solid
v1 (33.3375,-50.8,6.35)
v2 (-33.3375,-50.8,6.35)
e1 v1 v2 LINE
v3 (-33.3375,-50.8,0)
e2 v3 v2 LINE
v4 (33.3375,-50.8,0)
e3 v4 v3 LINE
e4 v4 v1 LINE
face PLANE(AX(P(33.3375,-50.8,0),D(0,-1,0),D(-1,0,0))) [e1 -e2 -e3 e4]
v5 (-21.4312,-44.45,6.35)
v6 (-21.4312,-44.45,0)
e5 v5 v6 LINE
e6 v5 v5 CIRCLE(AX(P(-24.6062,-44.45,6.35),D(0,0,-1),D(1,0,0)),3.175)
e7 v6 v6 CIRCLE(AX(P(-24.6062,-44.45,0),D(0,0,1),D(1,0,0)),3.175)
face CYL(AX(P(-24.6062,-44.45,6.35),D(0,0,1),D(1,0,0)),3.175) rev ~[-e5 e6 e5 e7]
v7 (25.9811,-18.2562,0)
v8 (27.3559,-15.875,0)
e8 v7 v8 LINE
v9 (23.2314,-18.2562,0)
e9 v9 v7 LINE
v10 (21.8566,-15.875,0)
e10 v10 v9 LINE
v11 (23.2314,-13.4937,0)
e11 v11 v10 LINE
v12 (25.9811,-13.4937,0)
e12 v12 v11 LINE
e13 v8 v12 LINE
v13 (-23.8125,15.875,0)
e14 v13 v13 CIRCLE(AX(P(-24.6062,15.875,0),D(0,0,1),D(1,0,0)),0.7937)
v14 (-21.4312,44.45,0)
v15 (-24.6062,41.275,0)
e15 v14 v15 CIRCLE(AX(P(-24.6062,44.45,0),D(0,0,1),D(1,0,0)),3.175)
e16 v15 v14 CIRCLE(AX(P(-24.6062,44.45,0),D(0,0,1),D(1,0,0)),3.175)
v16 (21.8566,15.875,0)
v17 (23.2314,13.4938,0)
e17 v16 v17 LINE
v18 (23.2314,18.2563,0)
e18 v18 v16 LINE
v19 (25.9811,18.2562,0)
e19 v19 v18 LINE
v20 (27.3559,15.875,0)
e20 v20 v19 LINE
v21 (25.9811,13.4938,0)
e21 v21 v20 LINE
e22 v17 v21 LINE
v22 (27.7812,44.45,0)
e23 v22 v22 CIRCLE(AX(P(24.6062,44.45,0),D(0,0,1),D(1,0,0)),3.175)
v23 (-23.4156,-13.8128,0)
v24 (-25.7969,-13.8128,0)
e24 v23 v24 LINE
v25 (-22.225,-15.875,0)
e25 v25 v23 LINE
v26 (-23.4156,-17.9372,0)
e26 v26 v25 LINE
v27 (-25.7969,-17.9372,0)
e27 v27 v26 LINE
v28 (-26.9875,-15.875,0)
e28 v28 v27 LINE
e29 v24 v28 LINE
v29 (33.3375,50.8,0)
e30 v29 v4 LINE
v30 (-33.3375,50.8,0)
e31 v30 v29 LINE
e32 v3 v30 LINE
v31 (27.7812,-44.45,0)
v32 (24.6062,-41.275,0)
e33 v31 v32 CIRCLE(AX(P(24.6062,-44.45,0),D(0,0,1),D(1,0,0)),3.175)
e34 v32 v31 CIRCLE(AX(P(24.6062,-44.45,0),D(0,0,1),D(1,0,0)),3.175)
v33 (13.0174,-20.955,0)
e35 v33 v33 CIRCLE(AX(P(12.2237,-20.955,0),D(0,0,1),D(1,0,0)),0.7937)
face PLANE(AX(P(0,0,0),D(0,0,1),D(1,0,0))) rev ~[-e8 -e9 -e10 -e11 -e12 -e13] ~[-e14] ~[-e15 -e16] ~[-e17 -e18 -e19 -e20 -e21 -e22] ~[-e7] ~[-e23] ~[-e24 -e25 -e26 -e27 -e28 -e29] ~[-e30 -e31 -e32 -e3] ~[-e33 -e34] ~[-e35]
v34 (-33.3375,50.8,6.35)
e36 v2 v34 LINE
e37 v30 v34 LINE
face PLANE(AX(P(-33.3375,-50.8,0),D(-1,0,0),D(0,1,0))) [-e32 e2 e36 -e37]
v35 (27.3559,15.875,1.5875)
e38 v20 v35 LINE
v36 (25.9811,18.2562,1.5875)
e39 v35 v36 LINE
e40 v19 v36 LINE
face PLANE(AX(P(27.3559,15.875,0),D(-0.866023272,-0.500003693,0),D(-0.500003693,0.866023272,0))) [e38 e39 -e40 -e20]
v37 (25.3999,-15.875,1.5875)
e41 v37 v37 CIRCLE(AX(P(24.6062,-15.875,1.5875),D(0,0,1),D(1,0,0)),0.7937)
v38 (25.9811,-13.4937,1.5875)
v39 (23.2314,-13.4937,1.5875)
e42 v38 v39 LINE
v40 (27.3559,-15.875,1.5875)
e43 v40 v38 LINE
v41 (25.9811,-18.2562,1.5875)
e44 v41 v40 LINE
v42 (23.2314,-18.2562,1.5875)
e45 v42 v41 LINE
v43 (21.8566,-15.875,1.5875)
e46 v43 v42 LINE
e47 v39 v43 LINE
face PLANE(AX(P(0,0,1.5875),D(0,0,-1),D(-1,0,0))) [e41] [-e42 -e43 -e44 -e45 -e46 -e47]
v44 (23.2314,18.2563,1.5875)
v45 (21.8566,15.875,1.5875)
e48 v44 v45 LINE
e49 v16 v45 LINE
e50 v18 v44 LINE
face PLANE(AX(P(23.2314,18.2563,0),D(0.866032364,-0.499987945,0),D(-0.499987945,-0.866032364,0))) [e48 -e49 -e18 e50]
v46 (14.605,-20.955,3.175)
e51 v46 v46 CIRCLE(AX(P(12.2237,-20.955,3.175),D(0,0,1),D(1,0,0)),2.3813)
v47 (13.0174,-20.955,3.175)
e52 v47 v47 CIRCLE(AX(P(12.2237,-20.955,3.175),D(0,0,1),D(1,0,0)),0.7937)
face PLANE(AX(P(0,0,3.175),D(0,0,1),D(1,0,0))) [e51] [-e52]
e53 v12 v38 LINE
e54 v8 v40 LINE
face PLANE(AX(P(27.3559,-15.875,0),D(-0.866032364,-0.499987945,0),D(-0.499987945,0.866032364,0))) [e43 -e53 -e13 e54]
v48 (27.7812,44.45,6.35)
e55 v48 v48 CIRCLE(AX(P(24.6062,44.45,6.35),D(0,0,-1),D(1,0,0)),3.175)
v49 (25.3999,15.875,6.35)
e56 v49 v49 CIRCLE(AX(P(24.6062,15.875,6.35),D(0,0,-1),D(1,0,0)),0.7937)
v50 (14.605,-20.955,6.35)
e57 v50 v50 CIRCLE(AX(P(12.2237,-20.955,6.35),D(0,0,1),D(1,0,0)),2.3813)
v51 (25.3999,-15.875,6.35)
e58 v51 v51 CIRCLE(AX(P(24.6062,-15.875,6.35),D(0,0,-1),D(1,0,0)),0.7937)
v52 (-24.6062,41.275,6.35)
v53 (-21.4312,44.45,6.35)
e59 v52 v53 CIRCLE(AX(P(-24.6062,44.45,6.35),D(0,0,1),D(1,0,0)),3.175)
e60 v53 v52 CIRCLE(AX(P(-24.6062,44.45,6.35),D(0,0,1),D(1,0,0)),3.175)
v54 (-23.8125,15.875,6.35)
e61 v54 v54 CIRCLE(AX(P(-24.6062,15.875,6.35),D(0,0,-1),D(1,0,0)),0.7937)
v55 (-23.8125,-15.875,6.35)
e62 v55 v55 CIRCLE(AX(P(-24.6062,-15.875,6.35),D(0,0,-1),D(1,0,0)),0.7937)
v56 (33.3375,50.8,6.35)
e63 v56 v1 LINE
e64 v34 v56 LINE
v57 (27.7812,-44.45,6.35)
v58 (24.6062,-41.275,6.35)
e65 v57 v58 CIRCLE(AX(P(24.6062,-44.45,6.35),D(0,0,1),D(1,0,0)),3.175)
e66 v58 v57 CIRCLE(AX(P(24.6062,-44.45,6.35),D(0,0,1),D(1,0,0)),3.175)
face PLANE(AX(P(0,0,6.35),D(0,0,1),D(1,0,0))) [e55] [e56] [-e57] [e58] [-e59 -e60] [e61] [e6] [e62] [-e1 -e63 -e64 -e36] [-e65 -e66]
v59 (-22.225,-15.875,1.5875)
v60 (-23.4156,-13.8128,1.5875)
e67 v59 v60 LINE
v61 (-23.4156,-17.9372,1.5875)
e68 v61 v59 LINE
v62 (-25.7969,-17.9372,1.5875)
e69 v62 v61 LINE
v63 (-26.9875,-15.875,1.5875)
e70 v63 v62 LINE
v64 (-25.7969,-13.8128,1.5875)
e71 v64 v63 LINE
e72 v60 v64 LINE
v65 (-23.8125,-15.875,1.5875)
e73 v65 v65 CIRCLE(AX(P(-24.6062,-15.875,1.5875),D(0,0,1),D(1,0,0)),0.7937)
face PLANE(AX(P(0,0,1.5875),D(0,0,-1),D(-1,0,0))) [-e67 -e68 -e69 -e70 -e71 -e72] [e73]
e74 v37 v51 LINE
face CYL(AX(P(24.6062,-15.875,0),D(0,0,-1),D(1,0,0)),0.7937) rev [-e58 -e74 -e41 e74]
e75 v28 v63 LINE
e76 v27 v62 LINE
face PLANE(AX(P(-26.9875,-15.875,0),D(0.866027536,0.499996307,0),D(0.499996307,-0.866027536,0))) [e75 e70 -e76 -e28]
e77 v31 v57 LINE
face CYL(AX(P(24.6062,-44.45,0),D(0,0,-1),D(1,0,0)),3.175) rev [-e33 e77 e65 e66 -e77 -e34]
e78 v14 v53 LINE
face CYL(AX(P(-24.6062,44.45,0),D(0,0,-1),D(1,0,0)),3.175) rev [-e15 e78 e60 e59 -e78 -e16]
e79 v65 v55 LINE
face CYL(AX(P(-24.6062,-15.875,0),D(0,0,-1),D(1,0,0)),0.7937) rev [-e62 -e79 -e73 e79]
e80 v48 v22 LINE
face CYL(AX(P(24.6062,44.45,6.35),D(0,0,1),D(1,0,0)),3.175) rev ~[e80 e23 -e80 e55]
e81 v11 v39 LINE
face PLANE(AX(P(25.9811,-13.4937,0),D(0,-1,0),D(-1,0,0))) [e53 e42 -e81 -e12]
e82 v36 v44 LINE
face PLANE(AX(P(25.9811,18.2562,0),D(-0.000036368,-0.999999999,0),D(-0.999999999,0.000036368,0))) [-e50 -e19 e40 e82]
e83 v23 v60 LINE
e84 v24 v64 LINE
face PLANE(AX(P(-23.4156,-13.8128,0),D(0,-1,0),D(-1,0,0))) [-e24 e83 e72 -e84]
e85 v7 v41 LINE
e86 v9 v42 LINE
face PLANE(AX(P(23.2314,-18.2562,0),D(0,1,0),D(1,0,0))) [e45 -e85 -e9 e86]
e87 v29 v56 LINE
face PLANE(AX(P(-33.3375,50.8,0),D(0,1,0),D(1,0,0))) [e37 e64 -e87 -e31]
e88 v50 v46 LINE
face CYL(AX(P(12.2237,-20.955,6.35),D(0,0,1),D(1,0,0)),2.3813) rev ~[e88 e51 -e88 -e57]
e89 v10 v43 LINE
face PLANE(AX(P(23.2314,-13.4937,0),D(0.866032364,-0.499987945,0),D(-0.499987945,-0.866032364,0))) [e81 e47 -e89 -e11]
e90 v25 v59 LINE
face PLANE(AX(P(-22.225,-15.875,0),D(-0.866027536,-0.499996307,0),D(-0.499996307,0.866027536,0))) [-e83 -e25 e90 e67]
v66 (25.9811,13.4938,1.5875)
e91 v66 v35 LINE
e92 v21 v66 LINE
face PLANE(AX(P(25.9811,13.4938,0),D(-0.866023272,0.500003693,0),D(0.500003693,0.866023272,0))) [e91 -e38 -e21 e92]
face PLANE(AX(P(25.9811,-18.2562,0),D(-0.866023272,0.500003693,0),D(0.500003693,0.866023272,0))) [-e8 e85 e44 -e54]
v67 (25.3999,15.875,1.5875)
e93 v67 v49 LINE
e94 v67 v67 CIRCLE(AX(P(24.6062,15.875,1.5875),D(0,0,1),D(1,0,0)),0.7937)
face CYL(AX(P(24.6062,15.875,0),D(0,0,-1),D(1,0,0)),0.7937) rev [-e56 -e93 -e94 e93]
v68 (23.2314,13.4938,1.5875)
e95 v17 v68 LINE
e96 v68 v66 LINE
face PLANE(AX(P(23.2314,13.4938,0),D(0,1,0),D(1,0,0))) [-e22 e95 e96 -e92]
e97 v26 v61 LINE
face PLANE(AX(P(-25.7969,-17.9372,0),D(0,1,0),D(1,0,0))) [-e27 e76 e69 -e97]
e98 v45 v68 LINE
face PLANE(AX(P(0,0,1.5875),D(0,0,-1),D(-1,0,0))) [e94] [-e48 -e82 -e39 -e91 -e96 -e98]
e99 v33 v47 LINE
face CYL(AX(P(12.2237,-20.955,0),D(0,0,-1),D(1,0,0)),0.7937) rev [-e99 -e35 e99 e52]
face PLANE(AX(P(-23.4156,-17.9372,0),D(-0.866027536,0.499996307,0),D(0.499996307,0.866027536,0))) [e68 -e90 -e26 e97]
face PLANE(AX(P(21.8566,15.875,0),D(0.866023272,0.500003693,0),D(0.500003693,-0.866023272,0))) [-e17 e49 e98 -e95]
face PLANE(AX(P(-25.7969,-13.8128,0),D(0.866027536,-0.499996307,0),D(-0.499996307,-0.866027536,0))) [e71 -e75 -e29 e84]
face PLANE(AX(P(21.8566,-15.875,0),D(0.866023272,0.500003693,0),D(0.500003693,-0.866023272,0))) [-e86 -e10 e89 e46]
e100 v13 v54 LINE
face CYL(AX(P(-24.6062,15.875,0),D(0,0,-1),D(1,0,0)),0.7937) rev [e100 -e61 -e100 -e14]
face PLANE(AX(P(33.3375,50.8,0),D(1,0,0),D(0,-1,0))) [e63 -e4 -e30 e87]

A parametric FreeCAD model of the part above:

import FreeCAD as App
import Part
import Sketcher

V = App.Vector
Q = App.Units.Quantity

doc = App.newDocument("Part")
params = doc.addObject("Spreadsheet::Sheet", "Params")
for row, (alias, value) in enumerate([
    ("sketch1_diameter", "0.25 in"),
    ("sketch1_height", "4 in"),
    ("sketch1_width", "2.625 in"),
    ("pad1_length", "0.25 in"),
    ("sketch2_diameter", "0.0625 in"),
    ("pocket1_length", "0.25 in"),
    ("sketch3_diameter", "0.0625 in"),
    ("sketch3_width", "0.093752 in"),
    ("pocket2_length", "0.0625 in"),
    ("sketch4_diameter", "0.1875 in"),
    ("sketch4_diameter2", "0.0625 in"),
    ("pocket3_length", "0.125 in"),
    ("sketch5_diameter", "0.25 in"),
    ("pocket4_length", "0.25 in"),
], start=1):
    params.set(f"A{row}", alias)
    params.set(f"B{row}", "=" + value)
    params.setAlias(f"B{row}", alias)

body = doc.addObject("PartDesign::Body", "Body")

# Sketch on XY plane
sketch1 = body.newObject("Sketcher::SketchObject", "Sketch")
sketch1.AttachmentSupport = (doc.getObject("XY_Plane"), [""])
sketch1.MapMode = "FlatFace"
sketch1.addGeometry(Part.LineSegment(V(-33.3375, -50.8, 0), V(33.3375, -50.8, 0)), False)
sketch1.addGeometry(Part.LineSegment(V(33.3375, -50.8, 0), V(33.3375, 50.8, 0)), False)
sketch1.addGeometry(Part.LineSegment(V(33.3375, 50.8, 0), V(-33.3375, 50.8, 0)), False)
sketch1.addGeometry(Part.LineSegment(V(-33.3375, 50.8, 0), V(-33.3375, -50.8, 0)), False)
sketch1.addGeometry(Part.Circle(V(24.6062, -44.45, 0), V(0, 0, 1), 3.175), False)
sketch1.addGeometry(Part.Circle(V(-24.6062, 44.45, 0), V(0, 0, 1), 3.175), False)
sketch1.addConstraint(Sketcher.Constraint("Coincident", 0, 2, 1, 1))
sketch1.addConstraint(Sketcher.Constraint("Coincident", 1, 2, 2, 1))
sketch1.addConstraint(Sketcher.Constraint("Coincident", 2, 2, 3, 1))
sketch1.addConstraint(Sketcher.Constraint("Coincident", 3, 2, 0, 1))
sketch1.addConstraint(Sketcher.Constraint("Horizontal", 0))
sketch1.addConstraint(Sketcher.Constraint("Vertical", 1))
sketch1.addConstraint(Sketcher.Constraint("Horizontal", 2))
sketch1.addConstraint(Sketcher.Constraint("Vertical", 3))
sketch1.addConstraint(Sketcher.Constraint("Equal", 4, 5))
sketch1.addConstraint(Sketcher.Constraint("Symmetric", 4, 3, 5, 3, -1, 1))
sketch1.addConstraint(Sketcher.Constraint("Symmetric", 0, 2, 2, 2, -1, 1))
sketch1.addConstraint(Sketcher.Constraint("Diameter", 4, Q("0.25 in")))
sketch1.addConstraint(Sketcher.Constraint("DistanceY", 1, 1, 1, 2, Q("4 in")))
sketch1.addConstraint(Sketcher.Constraint("DistanceX", 0, 1, 0, 2, Q("2.625 in")))
sketch1.addConstraint(Sketcher.Constraint("DistanceY", 0, 2, 4, 3, Q("0.25 in")))
sketch1.addConstraint(Sketcher.Constraint("DistanceX", 5, 3, 4, 3, Q("1.9375 in")))
sketch1.setExpression("Constraints[11]", "Params.sketch1_diameter")
sketch1.setExpression("Constraints[12]", "Params.sketch1_height")
sketch1.setExpression("Constraints[13]", "Params.sketch1_width")
pad1 = body.newObject("PartDesign::Pad", "Pad")
pad1.Profile = sketch1
pad1.setExpression("Length", "Params.pad1_length")

# Sketch on XY plane
sketch2 = body.newObject("Sketcher::SketchObject", "Sketch001")
sketch2.AttachmentSupport = (doc.getObject("XY_Plane"), [""])
sketch2.MapMode = "FlatFace"
sketch2.addGeometry(Part.Circle(V(-24.6062, -15.875, 0), V(0, 0, 1), 0.7937), False)
sketch2.addGeometry(Part.Circle(V(24.6062, -15.875, 0), V(0, 0, 1), 0.7937), False)
sketch2.addGeometry(Part.Circle(V(12.2237, -20.955, 0), V(0, 0, 1), 0.7937), False)
sketch2.addGeometry(Part.Circle(V(-24.6062, 15.875, 0), V(0, 0, 1), 0.7937), False)
sketch2.addGeometry(Part.Circle(V(24.6062, 15.875, 0), V(0, 0, 1), 0.7937), False)
sketch2.addConstraint(Sketcher.Constraint("Equal", 0, 1))
sketch2.addConstraint(Sketcher.Constraint("Equal", 1, 2))
sketch2.addConstraint(Sketcher.Constraint("Equal", 2, 3))
sketch2.addConstraint(Sketcher.Constraint("Equal", 3, 4))
sketch2.addConstraint(Sketcher.Constraint("Symmetric", 1, 3, 3, 3, -1, 1))
sketch2.addConstraint(Sketcher.Constraint("Symmetric", 0, 3, 4, 3, -1, 1))
sketch2.addConstraint(Sketcher.Constraint("Symmetric", 0, 3, 1, 3, -2))
sketch2.addConstraint(Sketcher.Constraint("Diameter", 0, Q("0.0625 in")))
sketch2.addConstraint(Sketcher.Constraint("DistanceX", 0, 3, 2, 3, Q("1.45 in")))
sketch2.addConstraint(Sketcher.Constraint("DistanceY", 0, 3, 3, 3, Q("1.25 in")))
sketch2.addConstraint(Sketcher.Constraint("DistanceY", 2, 3, 3, 3, Q("1.45 in")))
sketch2.addConstraint(Sketcher.Constraint("DistanceX", 0, 3, 1, 3, Q("1.9375 in")))
sketch2.setExpression("Constraints[7]", "Params.sketch2_diameter")
pocket1 = body.newObject("PartDesign::Pocket", "Pocket")
pocket1.Profile = sketch2
pocket1.setExpression("Length", "Params.pocket1_length")
pocket1.Reversed = True

# Sketch on XY plane
sketch3 = body.newObject("Sketcher::SketchObject", "Sketch002")
sketch3.AttachmentSupport = (doc.getObject("XY_Plane"), [""])
sketch3.MapMode = "FlatFace"
sketch3.addGeometry(Part.LineSegment(V(23.2314, 13.4938, 0), V(21.8566, 15.875, 0)), False)
sketch3.addGeometry(Part.LineSegment(V(21.8566, 15.875, 0), V(23.2314, 18.2563, 0)), False)
sketch3.addGeometry(Part.LineSegment(V(23.2314, 18.2563, 0), V(25.9811, 18.2562, 0)), False)
sketch3.addGeometry(Part.LineSegment(V(25.9811, 18.2562, 0), V(27.3559, 15.875, 0)), False)
sketch3.addGeometry(Part.LineSegment(V(27.3559, 15.875, 0), V(25.9811, 13.4938, 0)), False)
sketch3.addGeometry(Part.LineSegment(V(25.9811, 13.4938, 0), V(23.2314, 13.4938, 0)), False)
sketch3.addGeometry(Part.Circle(V(24.6062, 15.875, 0), V(0, 0, 1), 0.7937), False)
sketch3.addGeometry(Part.LineSegment(V(23.2314, -18.2562, 0), V(21.8566, -15.875, 0)), False)
sketch3.addGeometry(Part.LineSegment(V(21.8566, -15.875, 0), V(23.2314, -13.4937, 0)), False)
sketch3.addGeometry(Part.LineSegment(V(23.2314, -13.4937, 0), V(25.9811, -13.4937, 0)), False)
sketch3.addGeometry(Part.LineSegment(V(25.9811, -13.4937, 0), V(27.3559, -15.875, 0)), False)
sketch3.addGeometry(Part.LineSegment(V(27.3559, -15.875, 0), V(25.9811, -18.2562, 0)), False)
sketch3.addGeometry(Part.LineSegment(V(25.9811, -18.2562, 0), V(23.2314, -18.2562, 0)), False)
sketch3.addGeometry(Part.Circle(V(24.6062, -15.875, 0), V(0, 0, 1), 0.7937), False)
sketch3.addGeometry(Part.LineSegment(V(-25.7969, -17.9372, 0), V(-26.9875, -15.875, 0)), False)
sketch3.addGeometry(Part.LineSegment(V(-26.9875, -15.875, 0), V(-25.7969, -13.8128, 0)), False)
sketch3.addGeometry(Part.LineSegment(V(-25.7969, -13.8128, 0), V(-23.4156, -13.8128, 0)), False)
sketch3.addGeometry(Part.LineSegment(V(-23.4156, -13.8128, 0), V(-22.225, -15.875, 0)), False)
sketch3.addGeometry(Part.LineSegment(V(-22.225, -15.875, 0), V(-23.4156, -17.9372, 0)), False)
sketch3.addGeometry(Part.LineSegment(V(-23.4156, -17.9372, 0), V(-25.7969, -17.9372, 0)), False)
sketch3.addGeometry(Part.Circle(V(-24.6062, -15.875, 0), V(0, 0, 1), 0.7937), False)
sketch3.addConstraint(Sketcher.Constraint("Coincident", 0, 2, 1, 1))
sketch3.addConstraint(Sketcher.Constraint("Coincident", 1, 2, 2, 1))
sketch3.addConstraint(Sketcher.Constraint("Coincident", 2, 2, 3, 1))
sketch3.addConstraint(Sketcher.Constraint("Coincident", 3, 2, 4, 1))
sketch3.addConstraint(Sketcher.Constraint("Coincident", 4, 2, 5, 1))
sketch3.addConstraint(Sketcher.Constraint("Coincident", 5, 2, 0, 1))
sketch3.addConstraint(Sketcher.Constraint("Coincident", 7, 2, 8, 1))
sketch3.addConstraint(Sketcher.Constraint("Coincident", 8, 2, 9, 1))
sketch3.addConstraint(Sketcher.Constraint("Coincident", 9, 2, 10, 1))
sketch3.addConstraint(Sketcher.Constraint("Coincident", 10, 2, 11, 1))
sketch3.addConstraint(Sketcher.Constraint("Coincident", 11, 2, 12, 1))
sketch3.addConstraint(Sketcher.Constraint("Coincident", 12, 2, 7, 1))
sketch3.addConstraint(Sketcher.Constraint("Coincident", 14, 2, 15, 1))
sketch3.addConstraint(Sketcher.Constraint("Coincident", 15, 2, 16, 1))
sketch3.addConstraint(Sketcher.Constraint("Coincident", 16, 2, 17, 1))
sketch3.addConstraint(Sketcher.Constraint("Coincident", 17, 2, 18, 1))
sketch3.addConstraint(Sketcher.Constraint("Coincident", 18, 2, 19, 1))
sketch3.addConstraint(Sketcher.Constraint("Coincident", 19, 2, 14, 1))
sketch3.addConstraint(Sketcher.Constraint("Horizontal", 2))
sketch3.addConstraint(Sketcher.Constraint("Horizontal", 5))
sketch3.addConstraint(Sketcher.Constraint("Horizontal", 9))
sketch3.addConstraint(Sketcher.Constraint("Horizontal", 12))
sketch3.addConstraint(Sketcher.Constraint("Horizontal", 16))
sketch3.addConstraint(Sketcher.Constraint("Horizontal", 19))
sketch3.addConstraint(Sketcher.Constraint("Equal", 6, 13))
sketch3.addConstraint(Sketcher.Constraint("Equal", 13, 20))
sketch3.addConstraint(Sketcher.Constraint("Symmetric", 6, 3, 20, 3, -1, 1))
sketch3.addConstraint(Sketcher.Constraint("Symmetric", 13, 3, 20, 3, -2))
sketch3.addConstraint(Sketcher.Constraint("Symmetric", 0, 2, 7, 2, -1))
sketch3.addConstraint(Sketcher.Constraint("Symmetric", 5, 2, 8, 2, -1))
sketch3.addConstraint(Sketcher.Constraint("Symmetric", 3, 2, 10, 2, -1))
sketch3.addConstraint(Sketcher.Constraint("Symmetric", 2, 2, 11, 2, -1))
sketch3.addConstraint(Sketcher.Constraint("Parallel", 0, 3))
sketch3.addConstraint(Sketcher.Constraint("Parallel", 1, 4))
sketch3.addConstraint(Sketcher.Constraint("Parallel", 3, 7))
sketch3.addConstraint(Sketcher.Constraint("Parallel", 4, 8))
sketch3.addConstraint(Sketcher.Constraint("Parallel", 7, 10))
sketch3.addConstraint(Sketcher.Constraint("Parallel", 10, 14))
sketch3.addConstraint(Sketcher.Constraint("Parallel", 11, 15))
sketch3.addConstraint(Sketcher.Constraint("Parallel", 14, 17))
sketch3.addConstraint(Sketcher.Constraint("Parallel", 15, 18))
sketch3.addConstraint(Sketcher.Constraint("Horizontal", 6, 3, 0, 2))
sketch3.addConstraint(Sketcher.Constraint("Horizontal", 0, 2, 3, 2))
sketch3.addConstraint(Sketcher.Constraint("Horizontal", 10, 2, 14, 2))
sketch3.addConstraint(Sketcher.Constraint("Horizontal", 14, 2, 17, 2))
sketch3.addConstraint(Sketcher.Constraint("Vertical", 2, 2, 4, 2))
sketch3.addConstraint(Sketcher.Constraint("Vertical", 16, 2, 18, 2))
sketch3.addConstraint(Sketcher.Constraint("Diameter", 6, Q("0.0625 in")))
sketch3.addConstraint(Sketcher.Constraint("Angle", 0, Q("120.0002 deg")))
sketch3.addConstraint(Sketcher.Constraint("DistanceY", 4, 2, 2, 2, Q("0.1875 in")))
sketch3.addConstraint(Sketcher.Constraint("DistanceX", 14, 2, 17, 2, Q("0.1875 in")))
sketch3.addConstraint(Sketcher.Constraint("DistanceX", 16, 1, 16, 2, Q("0.093752 in")))
sketch3.addConstraint(Sketcher.Constraint("DistanceY", 13, 3, 6, 3, Q("1.25 in")))
sketch3.addConstraint(Sketcher.Constraint("DistanceX", -1, 1, 6, 3, Q("0.968748 in")))
sketch3.addConstraint(Sketcher.Constraint("DistanceX", -1, 1, 3, 2, Q("1.077 in")))
sketch3.addConstraint(Sketcher.Constraint("DistanceX", 14, 2, -1, 1, Q("1.0625 in")))
sketch3.addConstraint(Sketcher.Constraint("DistanceX", 14, 2, 7, 2, Q("1.923 in")))
sketch3.setExpression("Constraints[47]", "Params.sketch3_diameter")
sketch3.setExpression("Constraints[51]", "Params.sketch3_width")
pocket2 = body.newObject("PartDesign::Pocket", "Pocket001")
pocket2.Profile = sketch3
pocket2.setExpression("Length", "Params.pocket2_length")
pocket2.Reversed = True

# Sketch on XY plane
sketch4 = body.newObject("Sketcher::SketchObject", "Sketch003")
sketch4.AttachmentSupport = (doc.getObject("XY_Plane"), [""])
sketch4.MapMode = "FlatFace"
sketch4.AttachmentOffset = App.Placement(V(0, 0, 0.25 * 25.4), App.Rotation())
sketch4.addGeometry(Part.Circle(V(12.2237, -20.955, 0), V(0, 0, 1), 2.3813), False)
sketch4.addGeometry(Part.Circle(V(12.2237, -20.955, 0), V(0, 0, 1), 0.7937), False)
sketch4.addConstraint(Sketcher.Constraint("Coincident", 1, 3, 0, 3))
sketch4.addConstraint(Sketcher.Constraint("Diameter", 0, Q("0.1875 in")))
sketch4.addConstraint(Sketcher.Constraint("Diameter", 1, Q("0.0625 in")))
sketch4.addConstraint(Sketcher.Constraint("DistanceY", 0, 3, -1, 1, Q("0.825 in")))
sketch4.addConstraint(Sketcher.Constraint("DistanceX", -1, 1, 0, 3, Q("12.2237 mm")))
sketch4.setExpression("Constraints[1]", "Params.sketch4_diameter")
sketch4.setExpression("Constraints[2]", "Params.sketch4_diameter2")
pocket3 = body.newObject("PartDesign::Pocket", "Pocket002")
pocket3.Profile = sketch4
pocket3.setExpression("Length", "Params.pocket3_length")

# Sketch on XY plane
sketch5 = body.newObject("Sketcher::SketchObject", "Sketch004")
sketch5.AttachmentSupport = (doc.getObject("XY_Plane"), [""])
sketch5.MapMode = "FlatFace"
sketch5.AttachmentOffset = App.Placement(V(0, 0, 0.25 * 25.4), App.Rotation())
sketch5.addGeometry(Part.Circle(V(24.6062, 44.45, 0), V(0, 0, 1), 3.175), False)
sketch5.addGeometry(Part.Circle(V(-24.6062, -44.45, 0), V(0, 0, 1), 3.175), False)
sketch5.addConstraint(Sketcher.Constraint("Equal", 0, 1))
sketch5.addConstraint(Sketcher.Constraint("Symmetric", 0, 3, 1, 3, -1, 1))
sketch5.addConstraint(Sketcher.Constraint("Diameter", 0, Q("0.25 in")))
sketch5.addConstraint(Sketcher.Constraint("DistanceY", 1, 3, 0, 3, Q("3.5 in")))
sketch5.addConstraint(Sketcher.Constraint("DistanceX", -1, 1, 0, 3, Q("0.968748 in")))
sketch5.setExpression("Constraints[2]", "Params.sketch5_diameter")
pocket4 = body.newObject("PartDesign::Pocket", "Pocket003")
pocket4.Profile = sketch5
pocket4.setExpression("Length", "Params.pocket4_length")

doc.recompute()
